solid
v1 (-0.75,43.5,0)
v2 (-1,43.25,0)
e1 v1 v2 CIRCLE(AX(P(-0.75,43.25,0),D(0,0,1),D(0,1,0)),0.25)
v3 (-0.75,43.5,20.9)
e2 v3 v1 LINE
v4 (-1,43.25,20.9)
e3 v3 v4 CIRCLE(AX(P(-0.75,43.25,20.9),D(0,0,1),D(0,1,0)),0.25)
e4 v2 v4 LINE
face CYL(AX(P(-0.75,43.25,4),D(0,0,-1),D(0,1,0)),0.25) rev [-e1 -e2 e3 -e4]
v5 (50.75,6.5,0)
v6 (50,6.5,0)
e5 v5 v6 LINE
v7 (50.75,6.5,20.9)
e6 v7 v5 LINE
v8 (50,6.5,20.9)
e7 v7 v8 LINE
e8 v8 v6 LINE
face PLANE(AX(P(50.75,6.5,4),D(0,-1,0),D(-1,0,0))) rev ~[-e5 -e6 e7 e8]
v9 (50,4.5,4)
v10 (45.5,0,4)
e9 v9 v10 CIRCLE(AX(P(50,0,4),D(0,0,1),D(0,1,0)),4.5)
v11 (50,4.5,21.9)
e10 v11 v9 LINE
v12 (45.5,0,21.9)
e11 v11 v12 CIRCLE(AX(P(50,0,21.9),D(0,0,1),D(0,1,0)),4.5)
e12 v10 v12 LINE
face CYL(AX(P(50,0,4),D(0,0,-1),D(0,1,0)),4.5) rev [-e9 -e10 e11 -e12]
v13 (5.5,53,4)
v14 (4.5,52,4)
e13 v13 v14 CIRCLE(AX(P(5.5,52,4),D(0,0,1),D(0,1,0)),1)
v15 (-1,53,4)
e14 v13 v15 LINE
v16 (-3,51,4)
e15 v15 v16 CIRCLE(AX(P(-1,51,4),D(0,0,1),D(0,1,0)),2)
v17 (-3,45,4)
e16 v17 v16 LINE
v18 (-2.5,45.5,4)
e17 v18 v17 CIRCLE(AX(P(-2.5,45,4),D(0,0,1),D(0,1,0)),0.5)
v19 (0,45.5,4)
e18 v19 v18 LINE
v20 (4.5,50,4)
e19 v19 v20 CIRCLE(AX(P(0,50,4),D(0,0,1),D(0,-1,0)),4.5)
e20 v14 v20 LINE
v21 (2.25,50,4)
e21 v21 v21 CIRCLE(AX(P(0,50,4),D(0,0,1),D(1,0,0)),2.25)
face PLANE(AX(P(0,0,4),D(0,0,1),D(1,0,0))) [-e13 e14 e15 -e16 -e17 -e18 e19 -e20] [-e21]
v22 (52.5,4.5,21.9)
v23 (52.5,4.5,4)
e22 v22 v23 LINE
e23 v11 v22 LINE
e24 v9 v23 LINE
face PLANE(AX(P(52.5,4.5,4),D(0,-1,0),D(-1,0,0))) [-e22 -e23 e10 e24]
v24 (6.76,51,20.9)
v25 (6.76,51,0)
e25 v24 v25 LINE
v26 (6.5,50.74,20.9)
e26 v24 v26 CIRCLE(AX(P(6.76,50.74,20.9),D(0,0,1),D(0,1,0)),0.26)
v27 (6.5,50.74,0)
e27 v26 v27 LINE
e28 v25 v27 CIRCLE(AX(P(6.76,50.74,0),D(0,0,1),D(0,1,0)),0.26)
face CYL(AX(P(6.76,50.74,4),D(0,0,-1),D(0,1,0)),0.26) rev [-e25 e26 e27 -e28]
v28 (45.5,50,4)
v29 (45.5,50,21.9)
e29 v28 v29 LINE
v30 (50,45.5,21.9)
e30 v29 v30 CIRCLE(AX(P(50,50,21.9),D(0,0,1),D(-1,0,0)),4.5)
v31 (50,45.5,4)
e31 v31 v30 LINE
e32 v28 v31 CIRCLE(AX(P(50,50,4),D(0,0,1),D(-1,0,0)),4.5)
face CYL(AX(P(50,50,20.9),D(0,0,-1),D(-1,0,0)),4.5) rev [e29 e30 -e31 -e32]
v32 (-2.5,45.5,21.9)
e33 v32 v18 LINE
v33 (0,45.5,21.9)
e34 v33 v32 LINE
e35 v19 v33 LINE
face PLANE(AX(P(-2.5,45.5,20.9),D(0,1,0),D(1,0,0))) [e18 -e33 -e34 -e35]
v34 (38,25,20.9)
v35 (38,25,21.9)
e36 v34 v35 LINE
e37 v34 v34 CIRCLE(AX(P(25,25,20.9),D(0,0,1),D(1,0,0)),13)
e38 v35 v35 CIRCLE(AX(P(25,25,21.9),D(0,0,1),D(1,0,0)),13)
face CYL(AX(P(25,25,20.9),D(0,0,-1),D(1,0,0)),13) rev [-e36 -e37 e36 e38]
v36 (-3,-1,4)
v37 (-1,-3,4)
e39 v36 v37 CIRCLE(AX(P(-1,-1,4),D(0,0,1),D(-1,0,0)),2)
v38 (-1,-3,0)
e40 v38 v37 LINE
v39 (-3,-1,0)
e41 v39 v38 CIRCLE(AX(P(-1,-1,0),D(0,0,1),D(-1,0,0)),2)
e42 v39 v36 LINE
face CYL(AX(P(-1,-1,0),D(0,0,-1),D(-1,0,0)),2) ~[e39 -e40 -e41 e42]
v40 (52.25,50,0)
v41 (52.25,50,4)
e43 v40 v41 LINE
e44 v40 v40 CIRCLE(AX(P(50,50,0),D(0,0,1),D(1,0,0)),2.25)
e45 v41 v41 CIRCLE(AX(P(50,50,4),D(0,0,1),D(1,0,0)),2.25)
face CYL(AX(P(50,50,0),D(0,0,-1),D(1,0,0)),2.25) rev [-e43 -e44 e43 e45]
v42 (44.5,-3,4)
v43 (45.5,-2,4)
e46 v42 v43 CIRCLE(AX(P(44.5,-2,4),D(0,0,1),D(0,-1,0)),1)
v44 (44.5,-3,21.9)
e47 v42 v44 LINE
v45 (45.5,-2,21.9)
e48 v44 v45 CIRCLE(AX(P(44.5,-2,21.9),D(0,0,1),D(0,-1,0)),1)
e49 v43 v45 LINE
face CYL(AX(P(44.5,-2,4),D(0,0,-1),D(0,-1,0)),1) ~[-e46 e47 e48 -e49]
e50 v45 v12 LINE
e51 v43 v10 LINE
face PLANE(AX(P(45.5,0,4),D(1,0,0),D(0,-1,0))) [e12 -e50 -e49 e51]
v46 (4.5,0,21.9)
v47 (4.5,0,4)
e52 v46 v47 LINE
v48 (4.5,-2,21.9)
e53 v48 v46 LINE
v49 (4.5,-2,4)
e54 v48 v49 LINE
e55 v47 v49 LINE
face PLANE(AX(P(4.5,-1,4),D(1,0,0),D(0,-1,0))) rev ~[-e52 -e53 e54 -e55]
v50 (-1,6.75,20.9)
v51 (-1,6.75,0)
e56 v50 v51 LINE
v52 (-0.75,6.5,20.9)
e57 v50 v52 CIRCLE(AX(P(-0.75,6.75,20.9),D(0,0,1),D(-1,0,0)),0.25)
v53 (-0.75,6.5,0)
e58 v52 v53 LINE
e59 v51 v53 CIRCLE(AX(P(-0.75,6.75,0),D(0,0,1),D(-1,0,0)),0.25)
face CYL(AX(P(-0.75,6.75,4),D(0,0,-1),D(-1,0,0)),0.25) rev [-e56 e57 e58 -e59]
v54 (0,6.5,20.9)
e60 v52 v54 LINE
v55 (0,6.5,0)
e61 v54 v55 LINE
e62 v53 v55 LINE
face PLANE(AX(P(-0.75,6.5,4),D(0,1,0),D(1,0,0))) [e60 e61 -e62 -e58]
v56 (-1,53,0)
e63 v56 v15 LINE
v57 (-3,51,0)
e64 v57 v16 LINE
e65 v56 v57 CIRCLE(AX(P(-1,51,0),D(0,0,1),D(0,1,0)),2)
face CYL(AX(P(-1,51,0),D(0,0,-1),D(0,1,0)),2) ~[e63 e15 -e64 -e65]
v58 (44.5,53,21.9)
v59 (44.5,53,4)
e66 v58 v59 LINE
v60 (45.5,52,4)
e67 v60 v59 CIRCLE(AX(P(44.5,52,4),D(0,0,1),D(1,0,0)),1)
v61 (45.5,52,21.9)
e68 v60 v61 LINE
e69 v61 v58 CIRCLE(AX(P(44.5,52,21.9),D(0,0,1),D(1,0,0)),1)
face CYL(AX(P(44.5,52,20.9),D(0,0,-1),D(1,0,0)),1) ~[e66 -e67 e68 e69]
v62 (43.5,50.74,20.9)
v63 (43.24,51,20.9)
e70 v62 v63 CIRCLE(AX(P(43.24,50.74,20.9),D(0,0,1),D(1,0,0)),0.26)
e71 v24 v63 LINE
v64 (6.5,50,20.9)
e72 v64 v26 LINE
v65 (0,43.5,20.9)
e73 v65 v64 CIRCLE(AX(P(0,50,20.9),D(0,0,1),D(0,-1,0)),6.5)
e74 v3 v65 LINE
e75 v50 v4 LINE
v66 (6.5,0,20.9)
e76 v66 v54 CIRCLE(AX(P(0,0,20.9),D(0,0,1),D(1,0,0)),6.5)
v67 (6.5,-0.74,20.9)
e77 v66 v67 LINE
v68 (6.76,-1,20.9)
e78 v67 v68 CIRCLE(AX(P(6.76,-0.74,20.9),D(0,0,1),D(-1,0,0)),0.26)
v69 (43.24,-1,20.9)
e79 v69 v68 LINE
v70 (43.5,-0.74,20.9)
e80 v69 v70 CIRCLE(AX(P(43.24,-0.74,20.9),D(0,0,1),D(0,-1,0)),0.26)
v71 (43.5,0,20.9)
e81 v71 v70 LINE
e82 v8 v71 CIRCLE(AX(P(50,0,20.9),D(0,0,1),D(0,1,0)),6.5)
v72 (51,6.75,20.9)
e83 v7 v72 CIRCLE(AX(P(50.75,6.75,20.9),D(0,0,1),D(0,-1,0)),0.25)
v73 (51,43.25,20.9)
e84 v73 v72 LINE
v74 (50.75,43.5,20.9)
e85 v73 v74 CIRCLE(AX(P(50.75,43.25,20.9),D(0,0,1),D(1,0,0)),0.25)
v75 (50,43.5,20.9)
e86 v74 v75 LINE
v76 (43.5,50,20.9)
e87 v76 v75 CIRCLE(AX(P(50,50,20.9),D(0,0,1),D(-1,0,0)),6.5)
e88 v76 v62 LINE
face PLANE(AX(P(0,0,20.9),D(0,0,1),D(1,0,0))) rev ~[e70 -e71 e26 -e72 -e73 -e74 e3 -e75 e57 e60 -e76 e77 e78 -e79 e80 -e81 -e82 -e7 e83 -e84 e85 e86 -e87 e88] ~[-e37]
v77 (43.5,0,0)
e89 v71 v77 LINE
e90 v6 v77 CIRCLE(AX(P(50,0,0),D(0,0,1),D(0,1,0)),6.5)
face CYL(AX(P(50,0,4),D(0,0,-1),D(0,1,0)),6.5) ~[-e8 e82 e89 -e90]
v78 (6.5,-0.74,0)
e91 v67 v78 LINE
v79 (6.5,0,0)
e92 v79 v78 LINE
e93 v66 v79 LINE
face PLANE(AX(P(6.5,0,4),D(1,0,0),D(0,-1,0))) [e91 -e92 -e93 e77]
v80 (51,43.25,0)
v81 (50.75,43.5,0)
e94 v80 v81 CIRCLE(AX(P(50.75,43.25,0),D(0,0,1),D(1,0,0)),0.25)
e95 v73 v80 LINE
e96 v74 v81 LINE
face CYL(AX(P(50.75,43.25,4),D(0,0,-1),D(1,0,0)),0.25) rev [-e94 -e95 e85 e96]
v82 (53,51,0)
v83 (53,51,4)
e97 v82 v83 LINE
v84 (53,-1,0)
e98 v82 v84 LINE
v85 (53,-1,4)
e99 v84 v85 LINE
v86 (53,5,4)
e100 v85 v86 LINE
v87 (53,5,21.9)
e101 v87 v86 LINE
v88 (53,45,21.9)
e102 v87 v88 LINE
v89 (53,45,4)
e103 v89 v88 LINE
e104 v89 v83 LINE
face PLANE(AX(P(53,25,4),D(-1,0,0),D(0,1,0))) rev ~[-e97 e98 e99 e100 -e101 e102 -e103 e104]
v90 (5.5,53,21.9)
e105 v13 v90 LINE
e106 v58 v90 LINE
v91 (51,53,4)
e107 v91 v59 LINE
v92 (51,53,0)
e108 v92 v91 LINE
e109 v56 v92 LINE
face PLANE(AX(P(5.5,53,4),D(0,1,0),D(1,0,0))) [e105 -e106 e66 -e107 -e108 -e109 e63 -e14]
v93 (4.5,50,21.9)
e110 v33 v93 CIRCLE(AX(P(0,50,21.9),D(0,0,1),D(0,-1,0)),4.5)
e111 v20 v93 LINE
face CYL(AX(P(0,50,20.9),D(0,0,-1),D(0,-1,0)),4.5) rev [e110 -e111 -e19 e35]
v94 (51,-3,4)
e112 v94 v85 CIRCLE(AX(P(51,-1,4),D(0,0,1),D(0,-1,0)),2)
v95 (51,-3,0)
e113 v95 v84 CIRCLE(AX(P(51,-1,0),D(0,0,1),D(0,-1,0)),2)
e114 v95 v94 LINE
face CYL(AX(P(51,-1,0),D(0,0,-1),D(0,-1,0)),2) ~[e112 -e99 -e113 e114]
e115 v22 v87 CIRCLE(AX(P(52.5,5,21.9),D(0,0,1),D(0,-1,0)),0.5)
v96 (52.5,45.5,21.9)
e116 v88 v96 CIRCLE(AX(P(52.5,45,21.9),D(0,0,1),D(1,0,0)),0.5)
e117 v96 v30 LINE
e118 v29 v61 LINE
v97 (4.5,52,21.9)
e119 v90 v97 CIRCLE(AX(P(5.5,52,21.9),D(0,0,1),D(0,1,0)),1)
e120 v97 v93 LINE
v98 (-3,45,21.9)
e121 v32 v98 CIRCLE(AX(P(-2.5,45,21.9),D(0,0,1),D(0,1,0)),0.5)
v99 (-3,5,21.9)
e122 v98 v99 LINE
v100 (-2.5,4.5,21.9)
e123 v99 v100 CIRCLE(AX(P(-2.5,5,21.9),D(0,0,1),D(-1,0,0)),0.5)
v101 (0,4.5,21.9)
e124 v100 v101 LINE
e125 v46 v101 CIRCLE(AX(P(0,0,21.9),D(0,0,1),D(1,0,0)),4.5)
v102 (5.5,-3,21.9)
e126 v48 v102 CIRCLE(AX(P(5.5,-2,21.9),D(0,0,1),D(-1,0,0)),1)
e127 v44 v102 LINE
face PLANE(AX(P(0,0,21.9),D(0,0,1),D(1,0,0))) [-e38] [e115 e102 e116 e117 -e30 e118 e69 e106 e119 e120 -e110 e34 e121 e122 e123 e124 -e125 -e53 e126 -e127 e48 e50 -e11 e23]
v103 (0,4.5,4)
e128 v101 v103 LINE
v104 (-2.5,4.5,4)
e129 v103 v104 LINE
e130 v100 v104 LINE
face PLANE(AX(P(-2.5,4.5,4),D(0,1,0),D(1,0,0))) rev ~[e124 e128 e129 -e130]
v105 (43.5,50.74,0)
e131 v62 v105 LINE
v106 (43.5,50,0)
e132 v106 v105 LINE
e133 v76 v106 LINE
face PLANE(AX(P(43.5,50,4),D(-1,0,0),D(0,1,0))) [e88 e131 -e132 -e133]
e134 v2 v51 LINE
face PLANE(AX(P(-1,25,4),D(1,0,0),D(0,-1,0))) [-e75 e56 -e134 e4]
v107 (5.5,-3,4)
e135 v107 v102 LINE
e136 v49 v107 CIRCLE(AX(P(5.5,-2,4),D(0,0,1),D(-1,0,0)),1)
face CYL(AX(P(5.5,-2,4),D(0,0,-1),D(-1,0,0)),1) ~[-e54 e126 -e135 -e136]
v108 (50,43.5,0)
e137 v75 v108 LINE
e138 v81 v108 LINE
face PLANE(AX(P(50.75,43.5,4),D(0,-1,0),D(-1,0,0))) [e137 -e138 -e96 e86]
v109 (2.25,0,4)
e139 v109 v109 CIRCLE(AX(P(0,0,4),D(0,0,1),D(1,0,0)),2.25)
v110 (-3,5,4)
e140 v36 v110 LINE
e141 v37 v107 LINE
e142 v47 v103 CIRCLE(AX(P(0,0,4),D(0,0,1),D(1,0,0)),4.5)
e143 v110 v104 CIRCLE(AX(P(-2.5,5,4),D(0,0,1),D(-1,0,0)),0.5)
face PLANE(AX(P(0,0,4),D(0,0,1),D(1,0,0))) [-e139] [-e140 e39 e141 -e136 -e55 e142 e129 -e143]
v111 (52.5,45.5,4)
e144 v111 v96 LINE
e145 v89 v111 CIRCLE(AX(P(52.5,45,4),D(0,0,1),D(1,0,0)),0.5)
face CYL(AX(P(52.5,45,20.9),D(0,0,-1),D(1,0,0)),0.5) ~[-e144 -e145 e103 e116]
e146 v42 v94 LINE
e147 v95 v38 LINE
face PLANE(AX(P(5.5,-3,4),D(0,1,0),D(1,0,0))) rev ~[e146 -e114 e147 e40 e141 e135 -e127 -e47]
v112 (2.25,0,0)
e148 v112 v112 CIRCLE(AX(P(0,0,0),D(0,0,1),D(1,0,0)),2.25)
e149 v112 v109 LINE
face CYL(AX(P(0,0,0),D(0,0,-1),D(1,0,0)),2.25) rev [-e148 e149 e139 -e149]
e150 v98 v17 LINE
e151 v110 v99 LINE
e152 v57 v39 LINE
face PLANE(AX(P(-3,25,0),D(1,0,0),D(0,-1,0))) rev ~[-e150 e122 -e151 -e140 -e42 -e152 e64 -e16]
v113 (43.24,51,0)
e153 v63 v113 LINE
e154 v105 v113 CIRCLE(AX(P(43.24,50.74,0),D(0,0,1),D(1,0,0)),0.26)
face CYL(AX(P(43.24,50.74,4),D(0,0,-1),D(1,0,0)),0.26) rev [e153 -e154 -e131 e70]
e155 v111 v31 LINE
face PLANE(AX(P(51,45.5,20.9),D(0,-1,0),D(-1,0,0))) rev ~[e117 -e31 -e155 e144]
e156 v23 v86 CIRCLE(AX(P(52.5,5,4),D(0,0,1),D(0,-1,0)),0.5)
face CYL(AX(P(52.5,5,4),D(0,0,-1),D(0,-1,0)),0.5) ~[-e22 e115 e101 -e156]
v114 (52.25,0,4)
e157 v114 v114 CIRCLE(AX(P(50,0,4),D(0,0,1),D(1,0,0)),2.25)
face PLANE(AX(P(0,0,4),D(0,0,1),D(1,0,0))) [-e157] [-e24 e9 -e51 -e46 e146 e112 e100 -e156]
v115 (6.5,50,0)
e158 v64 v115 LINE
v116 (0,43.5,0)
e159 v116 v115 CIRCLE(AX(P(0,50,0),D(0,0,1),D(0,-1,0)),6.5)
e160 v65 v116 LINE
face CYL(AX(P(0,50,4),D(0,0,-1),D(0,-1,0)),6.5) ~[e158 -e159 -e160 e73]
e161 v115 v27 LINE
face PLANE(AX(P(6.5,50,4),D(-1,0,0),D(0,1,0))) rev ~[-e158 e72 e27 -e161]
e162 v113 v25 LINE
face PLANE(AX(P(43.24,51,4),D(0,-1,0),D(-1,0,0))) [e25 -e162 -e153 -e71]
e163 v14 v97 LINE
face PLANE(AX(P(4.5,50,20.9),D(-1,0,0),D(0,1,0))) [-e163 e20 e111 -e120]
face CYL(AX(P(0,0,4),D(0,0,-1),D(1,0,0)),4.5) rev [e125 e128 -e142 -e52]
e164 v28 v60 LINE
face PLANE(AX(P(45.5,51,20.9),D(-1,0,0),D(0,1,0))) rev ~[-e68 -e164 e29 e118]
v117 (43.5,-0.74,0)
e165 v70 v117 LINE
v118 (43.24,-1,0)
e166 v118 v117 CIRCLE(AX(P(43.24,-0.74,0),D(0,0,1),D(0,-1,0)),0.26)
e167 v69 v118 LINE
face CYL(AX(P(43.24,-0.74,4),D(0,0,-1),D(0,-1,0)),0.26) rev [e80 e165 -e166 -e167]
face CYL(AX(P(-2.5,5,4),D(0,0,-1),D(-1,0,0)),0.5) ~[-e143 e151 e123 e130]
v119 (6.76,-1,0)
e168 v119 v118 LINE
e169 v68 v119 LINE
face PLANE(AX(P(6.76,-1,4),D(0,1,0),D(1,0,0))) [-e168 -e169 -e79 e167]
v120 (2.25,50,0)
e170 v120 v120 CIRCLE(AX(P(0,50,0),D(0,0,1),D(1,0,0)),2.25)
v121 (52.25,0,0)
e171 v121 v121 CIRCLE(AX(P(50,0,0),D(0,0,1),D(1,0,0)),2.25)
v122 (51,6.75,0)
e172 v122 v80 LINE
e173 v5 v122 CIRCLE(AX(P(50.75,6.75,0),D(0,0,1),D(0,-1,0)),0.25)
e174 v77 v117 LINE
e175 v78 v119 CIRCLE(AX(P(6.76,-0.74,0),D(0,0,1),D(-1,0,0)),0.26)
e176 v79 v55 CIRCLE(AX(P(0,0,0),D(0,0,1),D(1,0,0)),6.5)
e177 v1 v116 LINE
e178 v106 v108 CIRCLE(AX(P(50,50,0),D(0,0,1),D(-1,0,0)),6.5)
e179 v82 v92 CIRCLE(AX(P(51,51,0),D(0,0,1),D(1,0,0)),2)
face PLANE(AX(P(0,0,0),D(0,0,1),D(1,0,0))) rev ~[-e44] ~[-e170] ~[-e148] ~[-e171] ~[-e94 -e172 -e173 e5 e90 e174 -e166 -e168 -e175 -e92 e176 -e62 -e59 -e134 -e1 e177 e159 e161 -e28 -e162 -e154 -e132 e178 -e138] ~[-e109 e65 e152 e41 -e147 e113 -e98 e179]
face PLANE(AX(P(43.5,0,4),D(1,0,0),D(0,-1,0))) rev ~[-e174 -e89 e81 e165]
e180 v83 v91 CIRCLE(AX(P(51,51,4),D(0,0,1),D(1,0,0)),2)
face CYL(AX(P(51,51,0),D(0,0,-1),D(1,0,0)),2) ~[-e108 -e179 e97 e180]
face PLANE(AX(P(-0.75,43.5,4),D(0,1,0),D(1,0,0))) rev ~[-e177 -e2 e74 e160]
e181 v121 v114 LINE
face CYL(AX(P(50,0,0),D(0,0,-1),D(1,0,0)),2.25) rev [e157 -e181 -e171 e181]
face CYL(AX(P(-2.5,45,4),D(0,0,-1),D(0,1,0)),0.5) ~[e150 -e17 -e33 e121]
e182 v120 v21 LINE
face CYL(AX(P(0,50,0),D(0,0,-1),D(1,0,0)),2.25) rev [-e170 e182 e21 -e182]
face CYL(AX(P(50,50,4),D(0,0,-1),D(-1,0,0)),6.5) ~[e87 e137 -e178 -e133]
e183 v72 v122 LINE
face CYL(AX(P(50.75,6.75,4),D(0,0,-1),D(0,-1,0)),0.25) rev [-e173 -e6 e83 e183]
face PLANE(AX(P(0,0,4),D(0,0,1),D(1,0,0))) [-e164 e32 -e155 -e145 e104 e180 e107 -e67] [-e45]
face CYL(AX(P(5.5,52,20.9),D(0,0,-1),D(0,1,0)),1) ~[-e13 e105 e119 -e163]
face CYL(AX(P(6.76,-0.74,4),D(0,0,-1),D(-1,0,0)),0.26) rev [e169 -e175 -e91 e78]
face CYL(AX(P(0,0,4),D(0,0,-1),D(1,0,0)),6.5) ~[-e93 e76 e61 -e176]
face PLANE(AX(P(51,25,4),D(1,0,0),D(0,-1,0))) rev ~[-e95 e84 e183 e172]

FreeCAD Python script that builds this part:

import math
import FreeCAD as App
import Part
import Sketcher
from FreeCAD import Vector

doc = App.newDocument("Part")
body = doc.addObject("PartDesign::Body", "Body")

# Sketch on XY plane
sketch1 = doc.addObject("Sketcher::SketchObject", "Sketch")
body.addObject(sketch1)
sketch1.AttachmentSupport = (doc.XY_Plane, [""])
sketch1.MapMode = "FlatFace"
sketch1.addGeometry([
    Part.ArcOfCircle(Part.Circle(Vector(-1, -1, 0), Vector(0, 0, 1), 2), math.radians(180), math.radians(270)),  # 0
    Part.LineSegment(Vector(-1, -3, 0), Vector(51, -3, 0)),  # 1
    Part.ArcOfCircle(Part.Circle(Vector(51, -1, 0), Vector(0, 0, 1), 2), math.radians(-90), math.radians(0)),  # 2
    Part.LineSegment(Vector(53, -1, 0), Vector(53, 51, 0)),  # 3
    Part.ArcOfCircle(Part.Circle(Vector(51, 51, 0), Vector(0, 0, 1), 2), math.radians(0), math.radians(90)),  # 4
    Part.LineSegment(Vector(51, 53, 0), Vector(-1, 53, 0)),  # 5
    Part.ArcOfCircle(Part.Circle(Vector(-1, 51, 0), Vector(0, 0, 1), 2), math.radians(90), math.radians(180)),  # 6
    Part.LineSegment(Vector(-3, 51, 0), Vector(-3, -1, 0)),  # 7
    Part.LineSegment(Vector(-1, 6.75, 0), Vector(-1, 43.25, 0)),  # 8
    Part.ArcOfCircle(Part.Circle(Vector(-0.75, 43.25, 0), Vector(0, 0, 1), 0.25), math.radians(90), math.radians(180)),  # 9
    Part.LineSegment(Vector(-0.75, 43.5, 0), Vector(0, 43.5, 0)),  # 10
    Part.ArcOfCircle(Part.Circle(Vector(0, 50, 0), Vector(0, 0, 1), 6.5), math.radians(-90), math.radians(0)),  # 11
    Part.LineSegment(Vector(6.5, 50, 0), Vector(6.5, 50.74, 0)),  # 12
    Part.ArcOfCircle(Part.Circle(Vector(6.76, 50.74, 0), Vector(0, 0, 1), 0.26), math.radians(90), math.radians(180)),  # 13
    Part.LineSegment(Vector(6.76, 51, 0), Vector(43.24, 51, 0)),  # 14
    Part.ArcOfCircle(Part.Circle(Vector(43.24, 50.74, 0), Vector(0, 0, 1), 0.26), math.radians(0), math.radians(90)),  # 15
    Part.LineSegment(Vector(43.5, 50.74, 0), Vector(43.5, 50, 0)),  # 16
    Part.ArcOfCircle(Part.Circle(Vector(50, 50, 0), Vector(0, 0, 1), 6.5), math.radians(180), math.radians(270)),  # 17
    Part.LineSegment(Vector(50, 43.5, 0), Vector(50.75, 43.5, 0)),  # 18
    Part.ArcOfCircle(Part.Circle(Vector(50.75, 43.25, 0), Vector(0, 0, 1), 0.25), math.radians(0), math.radians(90)),  # 19
    Part.LineSegment(Vector(51, 43.25, 0), Vector(51, 6.75, 0)),  # 20
    Part.ArcOfCircle(Part.Circle(Vector(50.75, 6.75, 0), Vector(0, 0, 1), 0.25), math.radians(-90), math.radians(0)),  # 21
    Part.LineSegment(Vector(50.75, 6.5, 0), Vector(50, 6.5, 0)),  # 22
    Part.ArcOfCircle(Part.Circle(Vector(50, 0, 0), Vector(0, 0, 1), 6.5), math.radians(90), math.radians(180)),  # 23
    Part.LineSegment(Vector(43.5, 0, 0), Vector(43.5, -0.74, 0)),  # 24
    Part.ArcOfCircle(Part.Circle(Vector(43.24, -0.74, 0), Vector(0, 0, 1), 0.26), math.radians(-90), math.radians(0)),  # 25
    Part.LineSegment(Vector(43.24, -1, 0), Vector(6.76, -1, 0)),  # 26
    Part.ArcOfCircle(Part.Circle(Vector(6.76, -0.74, 0), Vector(0, 0, 1), 0.26), math.radians(180), math.radians(270)),  # 27
    Part.LineSegment(Vector(6.5, -0.74, 0), Vector(6.5, 0, 0)),  # 28
    Part.ArcOfCircle(Part.Circle(Vector(0, 0, 0), Vector(0, 0, 1), 6.5), math.radians(0), math.radians(90)),  # 29
    Part.LineSegment(Vector(0, 6.5, 0), Vector(-0.75, 6.5, 0)),  # 30
    Part.ArcOfCircle(Part.Circle(Vector(-0.75, 6.75, 0), Vector(0, 0, 1), 0.25), math.radians(180), math.radians(270)),  # 31
    Part.Circle(Vector(0, 0, 0), Vector(0, 0, 1), 2.25),  # 32
    Part.Circle(Vector(0, 50, 0), Vector(0, 0, 1), 2.25),  # 33
    Part.Circle(Vector(50, 50, 0), Vector(0, 0, 1), 2.25),  # 34
    Part.Circle(Vector(50, 0, 0), Vector(0, 0, 1), 2.25),  # 35
], False)
sketch1.addConstraint([
    Sketcher.Constraint("Tangent", 0, 2, 1, 1),
    Sketcher.Constraint("Tangent", 1, 2, 2, 1),
    Sketcher.Constraint("Tangent", 2, 2, 3, 1),
    Sketcher.Constraint("Tangent", 3, 2, 4, 1),
    Sketcher.Constraint("Tangent", 4, 2, 5, 1),
    Sketcher.Constraint("Tangent", 5, 2, 6, 1),
    Sketcher.Constraint("Tangent", 6, 2, 7, 1),
    Sketcher.Constraint("Tangent", 7, 2, 0, 1),
    Sketcher.Constraint("Tangent", 8, 2, 9, 2),
    Sketcher.Constraint("Tangent", 9, 1, 10, 1),
    Sketcher.Constraint("Tangent", 10, 2, 11, 1),
    Sketcher.Constraint("Tangent", 11, 2, 12, 1),
    Sketcher.Constraint("Tangent", 12, 2, 13, 2),
    Sketcher.Constraint("Tangent", 13, 1, 14, 1),
    Sketcher.Constraint("Tangent", 14, 2, 15, 2),
    Sketcher.Constraint("Tangent", 15, 1, 16, 1),
    Sketcher.Constraint("Tangent", 16, 2, 17, 1),
    Sketcher.Constraint("Tangent", 17, 2, 18, 1),
    Sketcher.Constraint("Tangent", 18, 2, 19, 2),
    Sketcher.Constraint("Tangent", 19, 1, 20, 1),
    Sketcher.Constraint("Tangent", 20, 2, 21, 2),
    Sketcher.Constraint("Tangent", 21, 1, 22, 1),
    Sketcher.Constraint("Tangent", 22, 2, 23, 1),
    Sketcher.Constraint("Tangent", 23, 2, 24, 1),
    Sketcher.Constraint("Tangent", 24, 2, 25, 2),
    Sketcher.Constraint("Tangent", 25, 1, 26, 1),
    Sketcher.Constraint("Tangent", 26, 2, 27, 2),
    Sketcher.Constraint("Tangent", 27, 1, 28, 1),
    Sketcher.Constraint("Tangent", 28, 2, 29, 1),
    Sketcher.Constraint("Tangent", 29, 2, 30, 1),
    Sketcher.Constraint("Tangent", 30, 2, 31, 2),
    Sketcher.Constraint("Tangent", 31, 1, 8, 1),
    Sketcher.Constraint("Horizontal", 1),
    Sketcher.Constraint("Vertical", 3),
    Sketcher.Constraint("Horizontal", 5),
    Sketcher.Constraint("Vertical", 7),
    Sketcher.Constraint("Vertical", 8),
    Sketcher.Constraint("Horizontal", 10),
    Sketcher.Constraint("Vertical", 12),
    Sketcher.Constraint("Horizontal", 14),
    Sketcher.Constraint("Vertical", 16),
    Sketcher.Constraint("Horizontal", 18),
    Sketcher.Constraint("Vertical", 20),
    Sketcher.Constraint("Horizontal", 22),
    Sketcher.Constraint("Vertical", 24),
    Sketcher.Constraint("Horizontal", 26),
    Sketcher.Constraint("Vertical", 28),
    Sketcher.Constraint("Horizontal", 30),
    Sketcher.Constraint("Coincident", 29, 3, -1, 1),
    Sketcher.Constraint("Coincident", 32, 3, -1, 1),
    Sketcher.Constraint("Coincident", 33, 3, 11, 3),
    Sketcher.Constraint("Coincident", 34, 3, 17, 3),
    Sketcher.Constraint("Coincident", 35, 3, 23, 3),
    Sketcher.Constraint("Equal", 0, 2),
    Sketcher.Constraint("Equal", 2, 4),
    Sketcher.Constraint("Equal", 4, 6),
    Sketcher.Constraint("Equal", 13, 15),
    Sketcher.Constraint("Equal", 11, 17),
    Sketcher.Constraint("Equal", 9, 19),
    Sketcher.Constraint("Equal", 19, 21),
    Sketcher.Constraint("Equal", 17, 23),
    Sketcher.Constraint("Equal", 15, 25),
    Sketcher.Constraint("Equal", 25, 27),
    Sketcher.Constraint("Equal", 23, 29),
    Sketcher.Constraint("Equal", 21, 31),
    Sketcher.Constraint("Equal", 32, 33),
    Sketcher.Constraint("Equal", 33, 34),
    Sketcher.Constraint("Equal", 34, 35),
    Sketcher.Constraint("PointOnObject", 11, 3, -2),
    Sketcher.Constraint("PointOnObject", 23, 3, -1),
    Sketcher.Constraint("Horizontal", 11, 3, 17, 3),
    Sketcher.Constraint("Horizontal", 6, 2, 13, 1),
    Sketcher.Constraint("Horizontal", 7, 2, 25, 1),
    Sketcher.Constraint("Vertical", 17, 3, 23, 3),
    Sketcher.Constraint("Vertical", 5, 2, 8, 2),
    Sketcher.Constraint("Vertical", 4, 2, 19, 1),
    Sketcher.Constraint("Equal", 10, 18),
    Sketcher.Constraint("Equal", 5, 3),
    Sketcher.Constraint("Equal", 16, 24),
    Sketcher.Constraint("Radius", 0, 2.0),
    Sketcher.Constraint("Diameter", 32, 4.5),
    Sketcher.Constraint("Radius", 11, 6.5),
    Sketcher.Constraint("Radius", 9, 0.25),
    Sketcher.Constraint("Radius", 13, 0.26),
    Sketcher.Constraint("DistanceX", 0, 3, -1, 1, 1.0),
    Sketcher.Constraint("DistanceY", 0, 3, -1, 1, 1.0),
    Sketcher.Constraint("DistanceX", 1, 1, 1, 2, 52.0),
])
pad1 = doc.addObject("PartDesign::Pad", "Pad")
body.addObject(pad1)
pad1.Profile = sketch1
pad1.Length = 4

# Sketch on XY plane
sketch2 = doc.addObject("Sketcher::SketchObject", "Sketch001")
body.addObject(sketch2)
sketch2.AttachmentSupport = (doc.XY_Plane, [""])
sketch2.MapMode = "FlatFace"
sketch2.AttachmentOffset = App.Placement(Vector(0, 0, 4), App.Rotation())
sketch2.addGeometry([
    Part.ArcOfCircle(Part.Circle(Vector(5.5, -2, 0), Vector(0, 0, 1), 1), math.radians(180), math.radians(270)),  # 0
    Part.LineSegment(Vector(5.5, -3, 0), Vector(44.5, -3, 0)),  # 1
    Part.ArcOfCircle(Part.Circle(Vector(44.5, -2, 0), Vector(0, 0, 1), 1), math.radians(-90), math.radians(0)),  # 2
    Part.LineSegment(Vector(45.5, -2, 0), Vector(45.5, 0, 0)),  # 3
    Part.ArcOfCircle(Part.Circle(Vector(50, 0, 0), Vector(0, 0, 1), 4.5), math.radians(90), math.radians(180)),  # 4
    Part.LineSegment(Vector(50, 4.5, 0), Vector(52.5, 4.5, 0)),  # 5
    Part.ArcOfCircle(Part.Circle(Vector(52.5, 5, 0), Vector(0, 0, 1), 0.5), math.radians(-90), math.radians(0)),  # 6
    Part.LineSegment(Vector(53, 5, 0), Vector(53, 45, 0)),  # 7
    Part.ArcOfCircle(Part.Circle(Vector(52.5, 45, 0), Vector(0, 0, 1), 0.5), math.radians(0), math.radians(90)),  # 8
    Part.LineSegment(Vector(52.5, 45.5, 0), Vector(50, 45.5, 0)),  # 9
    Part.ArcOfCircle(Part.Circle(Vector(50, 50, 0), Vector(0, 0, 1), 4.5), math.radians(180), math.radians(270)),  # 10
    Part.LineSegment(Vector(45.5, 50, 0), Vector(45.5, 52, 0)),  # 11
    Part.ArcOfCircle(Part.Circle(Vector(44.5, 52, 0), Vector(0, 0, 1), 1), math.radians(0), math.radians(90)),  # 12
    Part.LineSegment(Vector(44.5, 53, 0), Vector(5.5, 53, 0)),  # 13
    Part.ArcOfCircle(Part.Circle(Vector(5.5, 52, 0), Vector(0, 0, 1), 1), math.radians(90), math.radians(180)),  # 14
    Part.LineSegment(Vector(4.5, 52, 0), Vector(4.5, 50, 0)),  # 15
    Part.ArcOfCircle(Part.Circle(Vector(0, 50, 0), Vector(0, 0, 1), 4.5), math.radians(-90), math.radians(0)),  # 16
    Part.LineSegment(Vector(0, 45.5, 0), Vector(-2.5, 45.5, 0)),  # 17
    Part.ArcOfCircle(Part.Circle(Vector(-2.5, 45, 0), Vector(0, 0, 1), 0.5), math.radians(90), math.radians(180)),  # 18
    Part.LineSegment(Vector(-3, 45, 0), Vector(-3, 5, 0)),  # 19
    Part.ArcOfCircle(Part.Circle(Vector(-2.5, 5, 0), Vector(0, 0, 1), 0.5), math.radians(180), math.radians(270)),  # 20
    Part.LineSegment(Vector(-2.5, 4.5, 0), Vector(0, 4.5, 0)),  # 21
    Part.ArcOfCircle(Part.Circle(Vector(0, 0, 0), Vector(0, 0, 1), 4.5), math.radians(0), math.radians(90)),  # 22
    Part.LineSegment(Vector(4.5, 0, 0), Vector(4.5, -2, 0)),  # 23
    Part.LineSegment(Vector(-1, 6.75, 0), Vector(-1, 43.25, 0)),  # 24
    Part.ArcOfCircle(Part.Circle(Vector(-0.75, 43.25, 0), Vector(0, 0, 1), 0.25), math.radians(90), math.radians(180)),  # 25
    Part.LineSegment(Vector(-0.75, 43.5, 0), Vector(0, 43.5, 0)),  # 26
    Part.ArcOfCircle(Part.Circle(Vector(0, 50, 0), Vector(0, 0, 1), 6.5), math.radians(-90), math.radians(0)),  # 27
    Part.LineSegment(Vector(6.5, 50, 0), Vector(6.5, 50.74, 0)),  # 28
    Part.ArcOfCircle(Part.Circle(Vector(6.76, 50.74, 0), Vector(0, 0, 1), 0.26), math.radians(90), math.radians(180)),  # 29
    Part.LineSegment(Vector(6.76, 51, 0), Vector(43.24, 51, 0)),  # 30
    Part.ArcOfCircle(Part.Circle(Vector(43.24, 50.74, 0), Vector(0, 0, 1), 0.26), math.radians(0), math.radians(90)),  # 31
    Part.LineSegment(Vector(43.5, 50.74, 0), Vector(43.5, 50, 0)),  # 32
    Part.ArcOfCircle(Part.Circle(Vector(50, 50, 0), Vector(0, 0, 1), 6.5), math.radians(180), math.radians(270)),  # 33
    Part.LineSegment(Vector(50, 43.5, 0), Vector(50.75, 43.5, 0)),  # 34
    Part.ArcOfCircle(Part.Circle(Vector(50.75, 43.25, 0), Vector(0, 0, 1), 0.25), math.radians(0), math.radians(90)),  # 35
    Part.LineSegment(Vector(51, 43.25, 0), Vector(51, 6.75, 0)),  # 36
    Part.ArcOfCircle(Part.Circle(Vector(50.75, 6.75, 0), Vector(0, 0, 1), 0.25), math.radians(-90), math.radians(0)),  # 37
    Part.LineSegment(Vector(50.75, 6.5, 0), Vector(50, 6.5, 0)),  # 38
    Part.ArcOfCircle(Part.Circle(Vector(50, 0, 0), Vector(0, 0, 1), 6.5), math.radians(90), math.radians(180)),  # 39
    Part.LineSegment(Vector(43.5, 0, 0), Vector(43.5, -0.74, 0)),  # 40
    Part.ArcOfCircle(Part.Circle(Vector(43.24, -0.74, 0), Vector(0, 0, 1), 0.26), math.radians(-90), math.radians(0)),  # 41
    Part.LineSegment(Vector(43.24, -1, 0), Vector(6.76, -1, 0)),  # 42
    Part.ArcOfCircle(Part.Circle(Vector(6.76, -0.74, 0), Vector(0, 0, 1), 0.26), math.radians(180), math.radians(270)),  # 43
    Part.LineSegment(Vector(6.5, -0.74, 0), Vector(6.5, 0, 0)),  # 44
    Part.ArcOfCircle(Part.Circle(Vector(0, 0, 0), Vector(0, 0, 1), 6.5), math.radians(0), math.radians(90)),  # 45
    Part.LineSegment(Vector(0, 6.5, 0), Vector(-0.75, 6.5, 0)),  # 46
    Part.ArcOfCircle(Part.Circle(Vector(-0.75, 6.75, 0), Vector(0, 0, 1), 0.25), math.radians(180), math.radians(270)),  # 47
], False)
sketch2.addConstraint([
    Sketcher.Constraint("Tangent", 0, 2, 1, 1),
    Sketcher.Constraint("Tangent", 1, 2, 2, 1),
    Sketcher.Constraint("Tangent", 2, 2, 3, 1),
    Sketcher.Constraint("Tangent", 3, 2, 4, 2),
    Sketcher.Constraint("Tangent", 4, 1, 5, 1),
    Sketcher.Constraint("Tangent", 5, 2, 6, 1),
    Sketcher.Constraint("Tangent", 6, 2, 7, 1),
    Sketcher.Constraint("Tangent", 7, 2, 8, 1),
    Sketcher.Constraint("Tangent", 8, 2, 9, 1),
    Sketcher.Constraint("Tangent", 9, 2, 10, 2),
    Sketcher.Constraint("Tangent", 10, 1, 11, 1),
    Sketcher.Constraint("Tangent", 11, 2, 12, 1),
    Sketcher.Constraint("Tangent", 12, 2, 13, 1),
    Sketcher.Constraint("Tangent", 13, 2, 14, 1),
    Sketcher.Constraint("Tangent", 14, 2, 15, 1),
    Sketcher.Constraint("Tangent", 15, 2, 16, 2),
    Sketcher.Constraint("Tangent", 16, 1, 17, 1),
    Sketcher.Constraint("Tangent", 17, 2, 18, 1),
    Sketcher.Constraint("Tangent", 18, 2, 19, 1),
    Sketcher.Constraint("Tangent", 19, 2, 20, 1),
    Sketcher.Constraint("Tangent", 20, 2, 21, 1),
    Sketcher.Constraint("Tangent", 21, 2, 22, 2),
    Sketcher.Constraint("Tangent", 22, 1, 23, 1),
    Sketcher.Constraint("Tangent", 23, 2, 0, 1),
    Sketcher.Constraint("Tangent", 24, 2, 25, 2),
    Sketcher.Constraint("Tangent", 25, 1, 26, 1),
    Sketcher.Constraint("Tangent", 26, 2, 27, 1),
    Sketcher.Constraint("Tangent", 27, 2, 28, 1),
    Sketcher.Constraint("Tangent", 28, 2, 29, 2),
    Sketcher.Constraint("Tangent", 29, 1, 30, 1),
    Sketcher.Constraint("Tangent", 30, 2, 31, 2),
    Sketcher.Constraint("Tangent", 31, 1, 32, 1),
    Sketcher.Constraint("Tangent", 32, 2, 33, 1),
    Sketcher.Constraint("Tangent", 33, 2, 34, 1),
    Sketcher.Constraint("Tangent", 34, 2, 35, 2),
    Sketcher.Constraint("Tangent", 35, 1, 36, 1),
    Sketcher.Constraint("Tangent", 36, 2, 37, 2),
    Sketcher.Constraint("Tangent", 37, 1, 38, 1),
    Sketcher.Constraint("Tangent", 38, 2, 39, 1),
    Sketcher.Constraint("Tangent", 39, 2, 40, 1),
    Sketcher.Constraint("Tangent", 40, 2, 41, 2),
    Sketcher.Constraint("Tangent", 41, 1, 42, 1),
    Sketcher.Constraint("Tangent", 42, 2, 43, 2),
    Sketcher.Constraint("Tangent", 43, 1, 44, 1),
    Sketcher.Constraint("Tangent", 44, 2, 45, 1),
    Sketcher.Constraint("Tangent", 45, 2, 46, 1),
    Sketcher.Constraint("Tangent", 46, 2, 47, 2),
    Sketcher.Constraint("Tangent", 47, 1, 24, 1),
    Sketcher.Constraint("Horizontal", 1),
    Sketcher.Constraint("Vertical", 3),
    Sketcher.Constraint("Horizontal", 5),
    Sketcher.Constraint("Vertical", 7),
    Sketcher.Constraint("Horizontal", 9),
    Sketcher.Constraint("Vertical", 11),
    Sketcher.Constraint("Horizontal", 13),
    Sketcher.Constraint("Vertical", 15),
    Sketcher.Constraint("Horizontal", 17),
    Sketcher.Constraint("Vertical", 19),
    Sketcher.Constraint("Horizontal", 21),
    Sketcher.Constraint("Vertical", 23),
    Sketcher.Constraint("Vertical", 24),
    Sketcher.Constraint("Horizontal", 26),
    Sketcher.Constraint("Vertical", 28),
    Sketcher.Constraint("Horizontal", 30),
    Sketcher.Constraint("Vertical", 32),
    Sketcher.Constraint("Horizontal", 34),
    Sketcher.Constraint("Vertical", 36),
    Sketcher.Constraint("Horizontal", 38),
    Sketcher.Constraint("Vertical", 40),
    Sketcher.Constraint("Horizontal", 42),
    Sketcher.Constraint("Vertical", 44),
    Sketcher.Constraint("Horizontal", 46),
    Sketcher.Constraint("Coincident", 22, 3, -1, 1),
    Sketcher.Constraint("Coincident", 45, 3, -1, 1),
    Sketcher.Constraint("Coincident", 27, 3, 16, 3),
    Sketcher.Constraint("Coincident", 33, 3, 10, 3),
    Sketcher.Constraint("Coincident", 39, 3, 4, 3),
    Sketcher.Constraint("Equal", 0, 2),
    Sketcher.Constraint("Equal", 6, 8),
    Sketcher.Constraint("Equal", 4, 10),
    Sketcher.Constraint("Equal", 2, 12),
    Sketcher.Constraint("Equal", 12, 14),
    Sketcher.Constraint("Equal", 10, 16),
    Sketcher.Constraint("Equal", 8, 18),
    Sketcher.Constraint("Equal", 18, 20),
    Sketcher.Constraint("Equal", 16, 22),
    Sketcher.Constraint("Equal", 29, 31),
    Sketcher.Constraint("Equal", 27, 33),
    Sketcher.Constraint("Equal", 25, 35),
    Sketcher.Constraint("Equal", 35, 37),
    Sketcher.Constraint("Equal", 33, 39),
    Sketcher.Constraint("Equal", 31, 41),
    Sketcher.Constraint("Equal", 41, 43),
    Sketcher.Constraint("Equal", 39, 45),
    Sketcher.Constraint("Equal", 37, 47),
    Sketcher.Constraint("PointOnObject", 4, 3, -1),
    Sketcher.Constraint("PointOnObject", 16, 3, -2),
    Sketcher.Constraint("Horizontal", 10, 3, 16, 3),
    Sketcher.Constraint("Vertical", 4, 3, 10, 3),
    Sketcher.Constraint("Equal", 9, 17),
    Sketcher.Constraint("Equal", 26, 34),
    Sketcher.Constraint("Equal", 3, 11),
    Sketcher.Constraint("Equal", 32, 40),
    Sketcher.Constraint("Radius", 0, 1.0),
    Sketcher.Constraint("Radius", 4, 4.5),
    Sketcher.Constraint("Radius", 6, 0.5),
    Sketcher.Constraint("Radius", 27, 6.5),
    Sketcher.Constraint("DistanceY", 3, 1, 3, 2, 2.0),
    Sketcher.Constraint("Radius", 25, 0.25),
    Sketcher.Constraint("Radius", 29, 0.26),
    Sketcher.Constraint("DistanceX", 18, 2, -1, 1, 3.0),
    Sketcher.Constraint("DistanceX", 24, 2, -1, 1, 1.0),
    Sketcher.Constraint("DistanceY", 41, 1, -1, 1, 1.0),
    Sketcher.Constraint("DistanceX", 1, 1, 1, 2, 39.0),
    Sketcher.Constraint("DistanceY", 7, 1, 7, 2, 40.0),
])
pad2 = doc.addObject("PartDesign::Pad", "Pad001")
body.addObject(pad2)
pad2.Profile = sketch2
pad2.Length = 16.9

# Sketch on XY plane
sketch3 = doc.addObject("Sketcher::SketchObject", "Sketch002")
body.addObject(sketch3)
sketch3.AttachmentSupport = (doc.XY_Plane, [""])
sketch3.MapMode = "FlatFace"
sketch3.AttachmentOffset = App.Placement(Vector(0, 0, 20.9), App.Rotation())
sketch3.addGeometry([
    Part.ArcOfCircle(Part.Circle(Vector(5.5, -2, 0), Vector(0, 0, 1), 1), math.radians(180), math.radians(270)),  # 0
    Part.LineSegment(Vector(5.5, -3, 0), Vector(44.5, -3, 0)),  # 1
    Part.ArcOfCircle(Part.Circle(Vector(44.5, -2, 0), Vector(0, 0, 1), 1), math.radians(-90), math.radians(0)),  # 2
    Part.LineSegment(Vector(45.5, -2, 0), Vector(45.5, 0, 0)),  # 3
    Part.ArcOfCircle(Part.Circle(Vector(50, 0, 0), Vector(0, 0, 1), 4.5), math.radians(90), math.radians(180)),  # 4
    Part.LineSegment(Vector(50, 4.5, 0), Vector(52.5, 4.5, 0)),  # 5
    Part.ArcOfCircle(Part.Circle(Vector(52.5, 5, 0), Vector(0, 0, 1), 0.5), math.radians(-90), math.radians(0)),  # 6
    Part.LineSegment(Vector(53, 5, 0), Vector(53, 45, 0)),  # 7
    Part.ArcOfCircle(Part.Circle(Vector(52.5, 45, 0), Vector(0, 0, 1), 0.5), math.radians(0), math.radians(90)),  # 8
    Part.LineSegment(Vector(52.5, 45.5, 0), Vector(50, 45.5, 0)),  # 9
    Part.ArcOfCircle(Part.Circle(Vector(50, 50, 0), Vector(0, 0, 1), 4.5), math.radians(180), math.radians(270)),  # 10
    Part.LineSegment(Vector(45.5, 50, 0), Vector(45.5, 52, 0)),  # 11
    Part.ArcOfCircle(Part.Circle(Vector(44.5, 52, 0), Vector(0, 0, 1), 1), math.radians(0), math.radians(90)),  # 12
    Part.LineSegment(Vector(44.5, 53, 0), Vector(5.5, 53, 0)),  # 13
    Part.ArcOfCircle(Part.Circle(Vector(5.5, 52, 0), Vector(0, 0, 1), 1), math.radians(90), math.radians(180)),  # 14
    Part.LineSegment(Vector(4.5, 52, 0), Vector(4.5, 50, 0)),  # 15
    Part.ArcOfCircle(Part.Circle(Vector(0, 50, 0), Vector(0, 0, 1), 4.5), math.radians(-90), math.radians(0)),  # 16
    Part.LineSegment(Vector(0, 45.5, 0), Vector(-2.5, 45.5, 0)),  # 17
    Part.ArcOfCircle(Part.Circle(Vector(-2.5, 45, 0), Vector(0, 0, 1), 0.5), math.radians(90), math.radians(180)),  # 18
    Part.LineSegment(Vector(-3, 45, 0), Vector(-3, 5, 0)),  # 19
    Part.ArcOfCircle(Part.Circle(Vector(-2.5, 5, 0), Vector(0, 0, 1), 0.5), math.radians(180), math.radians(270)),  # 20
    Part.LineSegment(Vector(-2.5, 4.5, 0), Vector(0, 4.5, 0)),  # 21
    Part.ArcOfCircle(Part.Circle(Vector(0, 0, 0), Vector(0, 0, 1), 4.5), math.radians(0), math.radians(90)),  # 22
    Part.LineSegment(Vector(4.5, 0, 0), Vector(4.5, -2, 0)),  # 23
    Part.Circle(Vector(25, 25, 0), Vector(0, 0, 1), 13),  # 24
], False)
sketch3.addConstraint([
    Sketcher.Constraint("Tangent", 0, 2, 1, 1),
    Sketcher.Constraint("Tangent", 1, 2, 2, 1),
    Sketcher.Constraint("Tangent", 2, 2, 3, 1),
    Sketcher.Constraint("Tangent", 3, 2, 4, 2),
    Sketcher.Constraint("Tangent", 4, 1, 5, 1),
    Sketcher.Constraint("Tangent", 5, 2, 6, 1),
    Sketcher.Constraint("Tangent", 6, 2, 7, 1),
    Sketcher.Constraint("Tangent", 7, 2, 8, 1),
    Sketcher.Constraint("Tangent", 8, 2, 9, 1),
    Sketcher.Constraint("Tangent", 9, 2, 10, 2),
    Sketcher.Constraint("Tangent", 10, 1, 11, 1),
    Sketcher.Constraint("Tangent", 11, 2, 12, 1),
    Sketcher.Constraint("Tangent", 12, 2, 13, 1),
    Sketcher.Constraint("Tangent", 13, 2, 14, 1),
    Sketcher.Constraint("Tangent", 14, 2, 15, 1),
    Sketcher.Constraint("Tangent", 15, 2, 16, 2),
    Sketcher.Constraint("Tangent", 16, 1, 17, 1),
    Sketcher.Constraint("Tangent", 17, 2, 18, 1),
    Sketcher.Constraint("Tangent", 18, 2, 19, 1),
    Sketcher.Constraint("Tangent", 19, 2, 20, 1),
    Sketcher.Constraint("Tangent", 20, 2, 21, 1),
    Sketcher.Constraint("Tangent", 21, 2, 22, 2),
    Sketcher.Constraint("Tangent", 22, 1, 23, 1),
    Sketcher.Constraint("Tangent", 23, 2, 0, 1),
    Sketcher.Constraint("Horizontal", 1),
    Sketcher.Constraint("Vertical", 3),
    Sketcher.Constraint("Horizontal", 5),
    Sketcher.Constraint("Vertical", 7),
    Sketcher.Constraint("Horizontal", 9),
    Sketcher.Constraint("Vertical", 11),
    Sketcher.Constraint("Horizontal", 13),
    Sketcher.Constraint("Vertical", 15),
    Sketcher.Constraint("Horizontal", 17),
    Sketcher.Constraint("Vertical", 19),
    Sketcher.Constraint("Horizontal", 21),
    Sketcher.Constraint("Vertical", 23),
    Sketcher.Constraint("Coincident", 22, 3, -1, 1),
    Sketcher.Constraint("Equal", 0, 2),
    Sketcher.Constraint("Equal", 6, 8),
    Sketcher.Constraint("Equal", 4, 10),
    Sketcher.Constraint("Equal", 2, 12),
    Sketcher.Constraint("Equal", 12, 14),
    Sketcher.Constraint("Equal", 10, 16),
    Sketcher.Constraint("Equal", 8, 18),
    Sketcher.Constraint("Equal", 18, 20),
    Sketcher.Constraint("Equal", 16, 22),
    Sketcher.Constraint("PointOnObject", 4, 3, -1),
    Sketcher.Constraint("PointOnObject", 16, 3, -2),
    Sketcher.Constraint("Horizontal", 10, 3, 16, 3),
    Sketcher.Constraint("Vertical", 4, 3, 10, 3),
    Sketcher.Constraint("Equal", 9, 17),
    Sketcher.Constraint("Equal", 3, 11),
    Sketcher.Constraint("Diameter", 24, 26.0),
    Sketcher.Constraint("Radius", 0, 1.0),
    Sketcher.Constraint("Radius", 4, 4.5),
    Sketcher.Constraint("Radius", 6, 0.5),
    Sketcher.Constraint("DistanceY", 3, 1, 3, 2, 2.0),
    Sketcher.Constraint("DistanceX", -1, 1, 24, 3, 25.0),
    Sketcher.Constraint("DistanceY", -1, 1, 24, 3, 25.0),
    Sketcher.Constraint("DistanceX", 18, 2, -1, 1, 3.0),
    Sketcher.Constraint("DistanceX", 1, 1, 1, 2, 39.0),
    Sketcher.Constraint("DistanceY", 7, 1, 7, 2, 40.0),
])
pad3 = doc.addObject("PartDesign::Pad", "Pad002")
body.addObject(pad3)
pad3.Profile = sketch3
pad3.Length = 1

doc.recompute()
